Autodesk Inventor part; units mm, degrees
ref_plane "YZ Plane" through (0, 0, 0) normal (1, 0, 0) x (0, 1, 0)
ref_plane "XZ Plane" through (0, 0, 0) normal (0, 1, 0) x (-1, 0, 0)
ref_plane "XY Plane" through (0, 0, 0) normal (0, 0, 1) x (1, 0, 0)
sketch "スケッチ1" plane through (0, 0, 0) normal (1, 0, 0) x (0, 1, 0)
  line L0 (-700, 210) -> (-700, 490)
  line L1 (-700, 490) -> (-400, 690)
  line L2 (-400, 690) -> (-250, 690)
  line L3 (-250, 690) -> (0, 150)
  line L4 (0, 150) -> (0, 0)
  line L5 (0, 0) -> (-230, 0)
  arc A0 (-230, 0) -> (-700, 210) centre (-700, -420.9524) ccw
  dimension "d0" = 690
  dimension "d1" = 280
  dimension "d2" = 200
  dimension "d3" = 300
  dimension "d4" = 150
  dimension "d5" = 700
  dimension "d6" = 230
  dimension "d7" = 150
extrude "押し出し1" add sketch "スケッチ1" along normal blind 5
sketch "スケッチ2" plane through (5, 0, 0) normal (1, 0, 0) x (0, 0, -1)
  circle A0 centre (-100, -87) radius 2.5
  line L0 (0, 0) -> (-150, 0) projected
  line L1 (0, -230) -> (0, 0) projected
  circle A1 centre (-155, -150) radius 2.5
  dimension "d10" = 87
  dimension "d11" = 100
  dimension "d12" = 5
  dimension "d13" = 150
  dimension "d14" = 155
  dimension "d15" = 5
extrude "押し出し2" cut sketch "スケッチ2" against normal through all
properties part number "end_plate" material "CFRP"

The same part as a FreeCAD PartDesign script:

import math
import FreeCAD as App
import Part
import Sketcher

V = App.Vector
Q = App.Units.Quantity

doc = App.newDocument("Part")
body = doc.addObject("PartDesign::Body", "Body")

# Sketch on YZ plane
sketch1 = body.newObject("Sketcher::SketchObject", "Sketch")
sketch1.AttachmentSupport = (doc.getObject("YZ_Plane"), [""])
sketch1.MapMode = "FlatFace"
sketch1.addGeometry([
    Part.LineSegment(V(-700, 490, 0), V(-700, 210, 0)),  # 0
    Part.ArcOfCircle(Part.Circle(V(-700, -421, 0), V(0, 0, 1), 631), math.radians(42), math.radians(90)),  # 1
    Part.LineSegment(V(-230, 0, 0), V(0, 0, 0)),  # 2
    Part.LineSegment(V(0, 0, 0), V(0, 150, 0)),  # 3
    Part.LineSegment(V(0, 150, 0), V(-250, 690, 0)),  # 4
    Part.LineSegment(V(-250, 690, 0), V(-400, 690, 0)),  # 5
    Part.LineSegment(V(-400, 690, 0), V(-700, 490, 0)),  # 6
], False)
sketch1.addConstraint([
    Sketcher.Constraint("Coincident", 0, 2, 1, 2),
    Sketcher.Constraint("Coincident", 1, 1, 2, 1),
    Sketcher.Constraint("Coincident", 2, 2, 3, 1),
    Sketcher.Constraint("Coincident", 3, 2, 4, 1),
    Sketcher.Constraint("Coincident", 4, 2, 5, 1),
    Sketcher.Constraint("Coincident", 5, 2, 6, 1),
    Sketcher.Constraint("Coincident", 6, 2, 0, 1),
    Sketcher.Constraint("Vertical", 0),
    Sketcher.Constraint("Horizontal", 2),
    Sketcher.Constraint("Vertical", 3),
    Sketcher.Constraint("Horizontal", 5),
    Sketcher.Constraint("Coincident", 2, 2, -1, 1),
    Sketcher.Constraint("Vertical", 1, 3, 0, 2),
    Sketcher.Constraint("Equal", 5, 3),
    Sketcher.Constraint("DistanceX", 2, 1, 2, 2, Q("230 mm")),
    Sketcher.Constraint("DistanceX", 5, 2, 5, 1, Q("150 mm")),
    Sketcher.Constraint("DistanceY", 0, 2, 0, 1, Q("280 mm")),
    Sketcher.Constraint("DistanceX", 1, 3, -1, 1, Q("700 mm")),
    Sketcher.Constraint("DistanceY", -1, 1, 4, 2, Q("690 mm")),
    Sketcher.Constraint("DistanceX", 0, 2, 5, 2, Q("300 mm")),
    Sketcher.Constraint("DistanceY", 6, 2, 5, 2, Q("200 mm")),
])
pad1 = body.newObject("PartDesign::Pad", "Pad")
pad1.Profile = sketch1
pad1.Length = 5

# Sketch on YZ plane
sketch2 = body.newObject("Sketcher::SketchObject", "Sketch001")
sketch2.AttachmentSupport = (doc.getObject("YZ_Plane"), [""])
sketch2.MapMode = "FlatFace"
sketch2.AttachmentOffset = App.Placement(V(0, 0, 5), App.Rotation())
sketch2.addGeometry([
    Part.Circle(V(-87, 100, 0), V(0, 0, 1), 2.5),
    Part.Circle(V(-150, 155, 0), V(0, 0, 1), 2.5),
], False)
sketch2.addConstraint([
    Sketcher.Constraint("Equal", 0, 1),
    Sketcher.Constraint("Diameter", 0, Q("5 mm")),
    Sketcher.Constraint("DistanceX", 0, 3, -1, 1, Q("87 mm")),
    Sketcher.Constraint("DistanceY", -1, 1, 0, 3, Q("100 mm")),
    Sketcher.Constraint("DistanceX", 1, 3, -1, 1, Q("150 mm")),
    Sketcher.Constraint("DistanceY", -1, 1, 1, 3, Q("155 mm")),
])
pocket1 = body.newObject("PartDesign::Pocket", "Pocket")
pocket1.Profile = sketch2
pocket1.Type = "ThroughAll"

doc.recompute()
